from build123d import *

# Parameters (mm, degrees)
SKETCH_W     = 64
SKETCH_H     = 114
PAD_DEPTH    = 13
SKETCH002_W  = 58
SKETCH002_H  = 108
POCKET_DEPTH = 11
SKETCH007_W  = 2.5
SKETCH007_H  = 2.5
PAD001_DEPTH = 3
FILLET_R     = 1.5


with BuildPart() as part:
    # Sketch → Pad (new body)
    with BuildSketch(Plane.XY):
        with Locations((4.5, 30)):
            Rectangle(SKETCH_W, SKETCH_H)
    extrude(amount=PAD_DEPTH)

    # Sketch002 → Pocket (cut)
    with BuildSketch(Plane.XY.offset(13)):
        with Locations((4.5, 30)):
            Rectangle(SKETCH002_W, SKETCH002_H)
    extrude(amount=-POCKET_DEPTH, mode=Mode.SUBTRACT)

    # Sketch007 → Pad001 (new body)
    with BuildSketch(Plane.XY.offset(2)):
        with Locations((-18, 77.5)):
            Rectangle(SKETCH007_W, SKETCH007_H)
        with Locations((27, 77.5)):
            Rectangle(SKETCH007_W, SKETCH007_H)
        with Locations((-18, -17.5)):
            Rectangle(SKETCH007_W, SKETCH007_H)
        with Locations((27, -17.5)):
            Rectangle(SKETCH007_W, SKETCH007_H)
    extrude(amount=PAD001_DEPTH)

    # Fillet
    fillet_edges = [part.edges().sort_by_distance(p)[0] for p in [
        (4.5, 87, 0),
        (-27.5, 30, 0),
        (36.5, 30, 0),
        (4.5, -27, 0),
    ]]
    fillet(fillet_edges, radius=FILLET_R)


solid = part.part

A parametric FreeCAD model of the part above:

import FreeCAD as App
import Part
import Sketcher

V = App.Vector
Q = App.Units.Quantity


def edges_at(feature, points):
    """Names of the edges that pass closest to the given points."""
    edges = feature.Shape.Edges
    near = lambda p: min(range(len(edges)), key=lambda i: edges[i].distToShape(Part.Vertex(*p))[0])
    return sorted({f"Edge{near(p) + 1}" for p in points})

doc = App.newDocument("Part")
body = doc.addObject("PartDesign::Body", "Body")

sketch1 = body.newObject("Sketcher::SketchObject", "Sketch")
sketch1.AttachmentSupport = (doc.getObject("XY_Plane"), [""])
sketch1.MapMode = "FlatFace"
sketch1.addGeometry(Part.LineSegment(V(-28, 87, 0), V(-28, -27, 0)), False)
sketch1.addGeometry(Part.LineSegment(V(-28, -27, 0), V(36, -27, 0)), False)
sketch1.addGeometry(Part.LineSegment(V(36, -27, 0), V(36, 87, 0)), False)
sketch1.addGeometry(Part.LineSegment(V(36, 87, 0), V(-28, 87, 0)), False)
sketch1.addConstraint(Sketcher.Constraint("Coincident", 0, 2, 1, 1))
sketch1.addConstraint(Sketcher.Constraint("Coincident", 1, 2, 2, 1))
sketch1.addConstraint(Sketcher.Constraint("Coincident", 2, 2, 3, 1))
sketch1.addConstraint(Sketcher.Constraint("Coincident", 3, 2, 0, 1))
sketch1.addConstraint(Sketcher.Constraint("Vertical", 0))
sketch1.addConstraint(Sketcher.Constraint("Horizontal", 1))
sketch1.addConstraint(Sketcher.Constraint("Vertical", 2))
sketch1.addConstraint(Sketcher.Constraint("Horizontal", 3))
sketch1.addConstraint(Sketcher.Constraint("DistanceX", 1, 1, 1, 2, Q("64 mm")))
sketch1.addConstraint(Sketcher.Constraint("DistanceY", 0, 2, 0, 1, Q("114 mm")))
sketch1.addConstraint(Sketcher.Constraint("DistanceY", 0, 2, -1, 1, Q("27 mm")))
sketch1.addConstraint(Sketcher.Constraint("DistanceX", 0, 2, -1, 1, Q("27.5 mm")))
pad1 = body.newObject("PartDesign::Pad", "Pad")
pad1.Profile = sketch1
pad1.Length = 13

sketch2 = body.newObject("Sketcher::SketchObject", "Sketch001")
sketch2.AttachmentSupport = (doc.getObject("XY_Plane"), [""])
sketch2.MapMode = "FlatFace"
sketch2.AttachmentOffset = App.Placement(V(0, 0, 13), App.Rotation())
sketch2.addGeometry(Part.LineSegment(V(-24, 84, 0), V(-24, -24, 0)), False)
sketch2.addGeometry(Part.LineSegment(V(-24, -24, 0), V(34, -24, 0)), False)
sketch2.addGeometry(Part.LineSegment(V(34, -24, 0), V(34, 84, 0)), False)
sketch2.addGeometry(Part.LineSegment(V(34, 84, 0), V(-24, 84, 0)), False)
sketch2.addConstraint(Sketcher.Constraint("Coincident", 0, 2, 1, 1))
sketch2.addConstraint(Sketcher.Constraint("Coincident", 1, 2, 2, 1))
sketch2.addConstraint(Sketcher.Constraint("Coincident", 2, 2, 3, 1))
sketch2.addConstraint(Sketcher.Constraint("Coincident", 3, 2, 0, 1))
sketch2.addConstraint(Sketcher.Constraint("Vertical", 0))
sketch2.addConstraint(Sketcher.Constraint("Horizontal", 1))
sketch2.addConstraint(Sketcher.Constraint("Vertical", 2))
sketch2.addConstraint(Sketcher.Constraint("Horizontal", 3))
sketch2.addConstraint(Sketcher.Constraint("DistanceX", 1, 1, 1, 2, Q("58 mm")))
sketch2.addConstraint(Sketcher.Constraint("DistanceY", 0, 2, 0, 1, Q("108 mm")))
sketch2.addConstraint(Sketcher.Constraint("DistanceY", 0, 2, -1, 1, Q("24 mm")))
sketch2.addConstraint(Sketcher.Constraint("DistanceX", 0, 2, -1, 1, Q("24.5 mm")))
pocket1 = body.newObject("PartDesign::Pocket", "Pocket")
pocket1.Profile = sketch2
pocket1.Length = 11

sketch3 = body.newObject("Sketcher::SketchObject", "Sketch002")
sketch3.AttachmentSupport = (doc.getObject("XY_Plane"), [""])
sketch3.MapMode = "FlatFace"
sketch3.AttachmentOffset = App.Placement(V(0, 0, 2), App.Rotation())
sketch3.addGeometry(Part.LineSegment(V(-19.2, 78.8, 0), V(-19.2, 76.2, 0)), False)
sketch3.addGeometry(Part.LineSegment(V(-19.2, 76.2, 0), V(-16.8, 76.2, 0)), False)
sketch3.addGeometry(Part.LineSegment(V(-16.8, 76.2, 0), V(-16.8, 78.8, 0)), False)
sketch3.addGeometry(Part.LineSegment(V(-16.8, 78.8, 0), V(-19.2, 78.8, 0)), False)
sketch3.addGeometry(Part.LineSegment(V(25.8, 78.8, 0), V(25.8, 76.2, 0)), False)
sketch3.addGeometry(Part.LineSegment(V(25.8, 76.2, 0), V(28.2, 76.2, 0)), False)
sketch3.addGeometry(Part.LineSegment(V(28.2, 76.2, 0), V(28.2, 78.8, 0)), False)
sketch3.addGeometry(Part.LineSegment(V(28.2, 78.8, 0), V(25.8, 78.8, 0)), False)
sketch3.addGeometry(Part.LineSegment(V(-19.2, -16.2, 0), V(-19.2, -18.8, 0)), False)
sketch3.addGeometry(Part.LineSegment(V(-19.2, -18.8, 0), V(-16.8, -18.8, 0)), False)
sketch3.addGeometry(Part.LineSegment(V(-16.8, -18.8, 0), V(-16.8, -16.2, 0)), False)
sketch3.addGeometry(Part.LineSegment(V(-16.8, -16.2, 0), V(-19.2, -16.2, 0)), False)
sketch3.addGeometry(Part.LineSegment(V(25.8, -16.2, 0), V(25.8, -18.8, 0)), False)
sketch3.addGeometry(Part.LineSegment(V(25.8, -18.8, 0), V(28.2, -18.8, 0)), False)
sketch3.addGeometry(Part.LineSegment(V(28.2, -18.8, 0), V(28.2, -16.2, 0)), False)
sketch3.addGeometry(Part.LineSegment(V(28.2, -16.2, 0), V(25.8, -16.2, 0)), False)
sketch3.addConstraint(Sketcher.Constraint("Coincident", 0, 2, 1, 1))
sketch3.addConstraint(Sketcher.Constraint("Coincident", 1, 2, 2, 1))
sketch3.addConstraint(Sketcher.Constraint("Coincident", 2, 2, 3, 1))
sketch3.addConstraint(Sketcher.Constraint("Coincident", 3, 2, 0, 1))
sketch3.addConstraint(Sketcher.Constraint("Coincident", 4, 2, 5, 1))
sketch3.addConstraint(Sketcher.Constraint("Coincident", 5, 2, 6, 1))
sketch3.addConstraint(Sketcher.Constraint("Coincident", 6, 2, 7, 1))
sketch3.addConstraint(Sketcher.Constraint("Coincident", 7, 2, 4, 1))
sketch3.addConstraint(Sketcher.Constraint("Coincident", 8, 2, 9, 1))
sketch3.addConstraint(Sketcher.Constraint("Coincident", 9, 2, 10, 1))
sketch3.addConstraint(Sketcher.Constraint("Coincident", 10, 2, 11, 1))
sketch3.addConstraint(Sketcher.Constraint("Coincident", 11, 2, 8, 1))
sketch3.addConstraint(Sketcher.Constraint("Coincident", 12, 2, 13, 1))
sketch3.addConstraint(Sketcher.Constraint("Coincident", 13, 2, 14, 1))
sketch3.addConstraint(Sketcher.Constraint("Coincident", 14, 2, 15, 1))
sketch3.addConstraint(Sketcher.Constraint("Coincident", 15, 2, 12, 1))
sketch3.addConstraint(Sketcher.Constraint("Vertical", 0))
sketch3.addConstraint(Sketcher.Constraint("Horizontal", 1))
sketch3.addConstraint(Sketcher.Constraint("Vertical", 2))
sketch3.addConstraint(Sketcher.Constraint("Horizontal", 3))
sketch3.addConstraint(Sketcher.Constraint("Vertical", 4))
sketch3.addConstraint(Sketcher.Constraint("Horizontal", 5))
sketch3.addConstraint(Sketcher.Constraint("Vertical", 6))
sketch3.addConstraint(Sketcher.Constraint("Horizontal", 7))
sketch3.addConstraint(Sketcher.Constraint("Vertical", 8))
sketch3.addConstraint(Sketcher.Constraint("Horizontal", 9))
sketch3.addConstraint(Sketcher.Constraint("Vertical", 10))
sketch3.addConstraint(Sketcher.Constraint("Horizontal", 11))
sketch3.addConstraint(Sketcher.Constraint("Vertical", 12))
sketch3.addConstraint(Sketcher.Constraint("Horizontal", 13))
sketch3.addConstraint(Sketcher.Constraint("Vertical", 14))
sketch3.addConstraint(Sketcher.Constraint("Horizontal", 15))
sketch3.addConstraint(Sketcher.Constraint("Horizontal", 1, 2, 4, 2))
sketch3.addConstraint(Sketcher.Constraint("Horizontal", 3, 2, 6, 2))
sketch3.addConstraint(Sketcher.Constraint("Horizontal", 9, 2, 12, 2))
sketch3.addConstraint(Sketcher.Constraint("Horizontal", 11, 2, 14, 2))
sketch3.addConstraint(Sketcher.Constraint("Vertical", 3, 2, 8, 2))
sketch3.addConstraint(Sketcher.Constraint("Vertical", 2, 2, 9, 2))
sketch3.addConstraint(Sketcher.Constraint("Vertical", 7, 2, 12, 2))
sketch3.addConstraint(Sketcher.Constraint("Vertical", 6, 2, 13, 2))
sketch3.addConstraint(Sketcher.Constraint("Equal", 3, 5))
sketch3.addConstraint(Sketcher.Constraint("Equal", 15, 0))
sketch3.addConstraint(Sketcher.Constraint("Equal", 6, 8))
sketch3.addConstraint(Sketcher.Constraint("DistanceX", 1, 1, 1, 2, Q("2.5 mm")))
sketch3.addConstraint(Sketcher.Constraint("DistanceX", 0, 2, 4, 2, Q("45 mm")))
sketch3.addConstraint(Sketcher.Constraint("DistanceY", 8, 2, 0, 2, Q("95 mm")))
sketch3.addConstraint(Sketcher.Constraint("DistanceX", 0, 2, -1, 1, Q("19.25 mm")))
sketch3.addConstraint(Sketcher.Constraint("DistanceY", -1, 1, 0, 2, Q("76.25 mm")))
pad2 = body.newObject("PartDesign::Pad", "Pad001")
pad2.Profile = sketch3
pad2.Length = 3
doc.recompute()

fillet = body.newObject("PartDesign::Fillet", "Fillet")
fillet.Base = (pad2, edges_at(pad2, [
    (4.5, 87, 0),
    (-27.5, 30, 0),
    (36.5, 30, 0),
    (4.5, -27, 0),
]))
fillet.Radius = 1.5

doc.recompute()
